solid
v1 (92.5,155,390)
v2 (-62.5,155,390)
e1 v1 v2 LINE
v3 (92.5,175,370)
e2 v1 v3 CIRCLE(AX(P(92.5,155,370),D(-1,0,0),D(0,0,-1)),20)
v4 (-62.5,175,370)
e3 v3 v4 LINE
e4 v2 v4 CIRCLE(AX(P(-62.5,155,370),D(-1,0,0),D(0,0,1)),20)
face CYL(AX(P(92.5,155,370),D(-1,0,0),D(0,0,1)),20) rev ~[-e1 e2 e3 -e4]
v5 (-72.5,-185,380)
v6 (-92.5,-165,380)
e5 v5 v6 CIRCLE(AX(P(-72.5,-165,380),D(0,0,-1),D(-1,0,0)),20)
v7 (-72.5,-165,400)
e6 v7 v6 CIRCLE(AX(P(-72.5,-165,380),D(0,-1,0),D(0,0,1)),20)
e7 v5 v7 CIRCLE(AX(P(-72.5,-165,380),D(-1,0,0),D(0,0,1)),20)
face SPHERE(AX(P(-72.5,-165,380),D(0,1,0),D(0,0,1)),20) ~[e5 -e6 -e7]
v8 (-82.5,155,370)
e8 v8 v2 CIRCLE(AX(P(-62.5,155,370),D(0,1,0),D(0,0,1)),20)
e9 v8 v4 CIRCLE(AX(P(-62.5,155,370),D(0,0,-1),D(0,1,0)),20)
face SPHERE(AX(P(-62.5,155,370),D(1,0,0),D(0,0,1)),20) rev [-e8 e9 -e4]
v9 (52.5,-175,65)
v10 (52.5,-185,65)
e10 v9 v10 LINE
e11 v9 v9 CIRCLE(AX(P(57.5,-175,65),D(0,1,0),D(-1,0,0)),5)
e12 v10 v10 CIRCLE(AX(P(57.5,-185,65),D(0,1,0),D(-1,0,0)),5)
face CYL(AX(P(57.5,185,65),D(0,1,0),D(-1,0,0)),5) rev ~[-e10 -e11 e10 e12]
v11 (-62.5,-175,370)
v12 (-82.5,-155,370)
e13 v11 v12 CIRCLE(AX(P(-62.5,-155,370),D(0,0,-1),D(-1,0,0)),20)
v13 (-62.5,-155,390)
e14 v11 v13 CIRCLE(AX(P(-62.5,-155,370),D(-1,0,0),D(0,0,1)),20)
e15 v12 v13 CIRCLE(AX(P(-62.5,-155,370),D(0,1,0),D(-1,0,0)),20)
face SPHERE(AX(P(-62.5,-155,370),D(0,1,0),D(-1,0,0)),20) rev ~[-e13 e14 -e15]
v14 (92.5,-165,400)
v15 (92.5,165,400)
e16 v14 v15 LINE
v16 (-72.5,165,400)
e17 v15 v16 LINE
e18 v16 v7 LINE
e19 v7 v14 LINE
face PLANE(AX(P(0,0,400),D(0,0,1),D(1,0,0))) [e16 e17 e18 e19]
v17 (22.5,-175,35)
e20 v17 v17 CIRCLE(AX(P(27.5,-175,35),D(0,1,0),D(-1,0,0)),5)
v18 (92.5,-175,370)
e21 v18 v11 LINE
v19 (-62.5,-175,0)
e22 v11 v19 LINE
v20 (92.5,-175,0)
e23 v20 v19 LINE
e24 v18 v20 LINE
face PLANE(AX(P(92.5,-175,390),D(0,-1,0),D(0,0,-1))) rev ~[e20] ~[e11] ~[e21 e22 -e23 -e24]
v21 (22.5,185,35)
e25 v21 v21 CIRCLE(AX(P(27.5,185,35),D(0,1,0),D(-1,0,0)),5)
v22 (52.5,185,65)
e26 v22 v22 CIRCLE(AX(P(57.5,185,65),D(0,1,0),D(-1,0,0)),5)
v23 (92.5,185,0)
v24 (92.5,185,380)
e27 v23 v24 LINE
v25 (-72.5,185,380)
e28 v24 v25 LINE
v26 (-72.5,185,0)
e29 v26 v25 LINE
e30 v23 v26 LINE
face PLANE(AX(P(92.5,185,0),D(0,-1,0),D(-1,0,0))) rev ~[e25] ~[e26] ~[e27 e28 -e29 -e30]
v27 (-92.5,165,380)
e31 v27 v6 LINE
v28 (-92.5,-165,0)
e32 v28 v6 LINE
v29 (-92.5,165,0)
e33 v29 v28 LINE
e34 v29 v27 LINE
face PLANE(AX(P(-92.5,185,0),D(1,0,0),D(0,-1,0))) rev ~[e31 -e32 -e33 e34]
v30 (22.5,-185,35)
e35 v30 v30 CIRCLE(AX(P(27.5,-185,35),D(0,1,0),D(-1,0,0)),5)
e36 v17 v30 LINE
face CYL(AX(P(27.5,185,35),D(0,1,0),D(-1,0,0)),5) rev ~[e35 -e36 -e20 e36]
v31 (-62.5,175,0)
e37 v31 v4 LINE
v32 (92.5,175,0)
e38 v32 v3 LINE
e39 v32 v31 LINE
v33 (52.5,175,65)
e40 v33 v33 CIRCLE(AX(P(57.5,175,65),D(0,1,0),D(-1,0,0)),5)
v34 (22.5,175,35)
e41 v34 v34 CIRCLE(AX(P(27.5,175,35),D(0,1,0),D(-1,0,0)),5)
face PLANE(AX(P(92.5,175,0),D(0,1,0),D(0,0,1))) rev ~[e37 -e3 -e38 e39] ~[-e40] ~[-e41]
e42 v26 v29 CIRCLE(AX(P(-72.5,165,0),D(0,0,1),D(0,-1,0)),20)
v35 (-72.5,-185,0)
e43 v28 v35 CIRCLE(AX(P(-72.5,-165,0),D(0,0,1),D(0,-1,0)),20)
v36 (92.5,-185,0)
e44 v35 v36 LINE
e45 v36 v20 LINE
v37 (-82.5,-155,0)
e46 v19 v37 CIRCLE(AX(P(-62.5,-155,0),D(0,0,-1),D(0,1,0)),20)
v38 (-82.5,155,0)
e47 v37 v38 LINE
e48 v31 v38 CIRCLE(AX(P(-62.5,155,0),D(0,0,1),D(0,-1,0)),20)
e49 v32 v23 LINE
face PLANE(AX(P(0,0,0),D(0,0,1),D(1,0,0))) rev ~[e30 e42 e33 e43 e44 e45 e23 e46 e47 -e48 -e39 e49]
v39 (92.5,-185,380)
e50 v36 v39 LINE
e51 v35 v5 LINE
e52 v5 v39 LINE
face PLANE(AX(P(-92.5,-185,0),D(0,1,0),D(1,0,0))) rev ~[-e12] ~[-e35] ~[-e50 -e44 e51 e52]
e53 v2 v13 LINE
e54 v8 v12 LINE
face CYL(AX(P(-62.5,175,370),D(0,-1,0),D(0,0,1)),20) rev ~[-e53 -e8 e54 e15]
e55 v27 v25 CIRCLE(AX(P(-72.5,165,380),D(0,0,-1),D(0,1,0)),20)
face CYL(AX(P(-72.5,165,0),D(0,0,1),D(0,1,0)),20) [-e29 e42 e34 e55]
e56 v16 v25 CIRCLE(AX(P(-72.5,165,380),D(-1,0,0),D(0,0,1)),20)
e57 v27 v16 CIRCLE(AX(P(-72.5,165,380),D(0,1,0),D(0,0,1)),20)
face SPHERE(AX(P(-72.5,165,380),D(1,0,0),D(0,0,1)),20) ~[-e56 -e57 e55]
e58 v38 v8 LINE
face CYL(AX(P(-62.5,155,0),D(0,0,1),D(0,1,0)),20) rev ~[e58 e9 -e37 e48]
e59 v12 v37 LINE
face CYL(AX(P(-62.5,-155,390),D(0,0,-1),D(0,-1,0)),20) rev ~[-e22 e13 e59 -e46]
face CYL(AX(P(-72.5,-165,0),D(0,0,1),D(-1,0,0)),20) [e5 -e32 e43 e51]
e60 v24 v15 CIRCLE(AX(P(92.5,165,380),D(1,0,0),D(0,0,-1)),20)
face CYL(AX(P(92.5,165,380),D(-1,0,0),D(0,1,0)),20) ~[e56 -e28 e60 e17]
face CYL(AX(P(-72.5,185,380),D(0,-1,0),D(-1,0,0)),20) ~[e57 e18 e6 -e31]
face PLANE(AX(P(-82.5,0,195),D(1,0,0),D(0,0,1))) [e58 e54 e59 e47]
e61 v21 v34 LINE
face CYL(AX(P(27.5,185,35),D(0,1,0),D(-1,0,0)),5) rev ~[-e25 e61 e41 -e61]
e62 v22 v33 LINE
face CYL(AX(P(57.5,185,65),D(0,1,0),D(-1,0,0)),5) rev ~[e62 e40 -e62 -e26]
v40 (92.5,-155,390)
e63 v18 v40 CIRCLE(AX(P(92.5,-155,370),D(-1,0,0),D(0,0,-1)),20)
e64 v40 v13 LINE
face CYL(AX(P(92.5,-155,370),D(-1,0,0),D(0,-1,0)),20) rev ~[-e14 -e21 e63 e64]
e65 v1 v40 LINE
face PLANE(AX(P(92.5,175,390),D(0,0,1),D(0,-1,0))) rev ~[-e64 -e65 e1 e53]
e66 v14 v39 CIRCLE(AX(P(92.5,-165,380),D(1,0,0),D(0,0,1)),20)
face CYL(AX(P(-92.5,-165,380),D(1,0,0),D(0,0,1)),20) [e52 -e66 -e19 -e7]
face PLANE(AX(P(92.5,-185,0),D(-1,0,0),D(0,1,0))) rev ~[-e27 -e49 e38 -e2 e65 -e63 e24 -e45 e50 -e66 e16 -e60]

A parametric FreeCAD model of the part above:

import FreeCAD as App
import Part
import Sketcher
from FreeCAD import Vector
Q = App.Units.Quantity


def edges_at(feature, points):
    """Names of the edges that pass closest to the given points."""
    edges = feature.Shape.Edges
    near = lambda p: min(range(len(edges)), key=lambda i: edges[i].distToShape(Part.Vertex(*p))[0])
    return sorted({f"Edge{near(p) + 1}" for p in points})

doc = App.newDocument("Part")
body = doc.addObject("PartDesign::Body", "Body")

# Sketch on XY plane
sketch1 = body.newObject("Sketcher::SketchObject", "Sketch")
sketch1.AttachmentSupport = (doc.getObject("XY_Plane"), [""])
sketch1.MapMode = "FlatFace"
sketch1.addGeometry([
    Part.LineSegment(Vector(92, -185, 0), Vector(92, 185, 0)),
    Part.LineSegment(Vector(92, 185, 0), Vector(-92, 185, 0)),
    Part.LineSegment(Vector(-92, 185, 0), Vector(-92, -185, 0)),
    Part.LineSegment(Vector(-92, -185, 0), Vector(92, -185, 0)),
], False)
sketch1.addConstraint([
    Sketcher.Constraint("Coincident", 0, 2, 1, 1),
    Sketcher.Constraint("Coincident", 1, 2, 2, 1),
    Sketcher.Constraint("Coincident", 2, 2, 3, 1),
    Sketcher.Constraint("Coincident", 3, 2, 0, 1),
    Sketcher.Constraint("Vertical", 0),
    Sketcher.Constraint("Horizontal", 1),
    Sketcher.Constraint("Vertical", 2),
    Sketcher.Constraint("Horizontal", 3),
    Sketcher.Constraint("Symmetric", 0, 2, 2, 2, -1, 1),
    Sketcher.Constraint("DistanceX", -1, 1, 0, 2, Q("92.5 mm")),
    Sketcher.Constraint("DistanceY", 0, 1, 0, 2, Q("370 mm")),
])
pad1 = body.newObject("PartDesign::Pad", "Pad")
pad1.Profile = sketch1
pad1.Length = 400

# Sketch on YZ plane
sketch2 = body.newObject("Sketcher::SketchObject", "Sketch001")
sketch2.AttachmentSupport = (doc.getObject("YZ_Plane"), [""])
sketch2.MapMode = "FlatFace"
sketch2.AttachmentOffset = App.Placement(Vector(0, 0, 92.5), App.Rotation())
sketch2.addGeometry([
    Part.LineSegment(Vector(175, 0, 0), Vector(175, 390, 0)),
    Part.LineSegment(Vector(175, 390, 0), Vector(-175, 390, 0)),
    Part.LineSegment(Vector(-175, 390, 0), Vector(-175, 0, 0)),
    Part.LineSegment(Vector(-175, 0, 0), Vector(175, 0, 0)),
], False)
sketch2.addConstraint([
    Sketcher.Constraint("Coincident", 0, 2, 1, 1),
    Sketcher.Constraint("Coincident", 1, 2, 2, 1),
    Sketcher.Constraint("Coincident", 2, 2, 3, 1),
    Sketcher.Constraint("Coincident", 3, 2, 0, 1),
    Sketcher.Constraint("Vertical", 0),
    Sketcher.Constraint("Horizontal", 1),
    Sketcher.Constraint("Vertical", 2),
    Sketcher.Constraint("Horizontal", 3),
    Sketcher.Constraint("Symmetric", 2, 2, 3, 2, -1, 1),
    Sketcher.Constraint("DistanceX", -1, 1, 0, 2, Q("175 mm")),
    Sketcher.Constraint("DistanceY", 0, 1, 0, 2, Q("390 mm")),
])
pocket1 = body.newObject("PartDesign::Pocket", "Pocket")
pocket1.Profile = sketch2
pocket1.Length = 175
doc.recompute()

fillet = body.newObject("PartDesign::Fillet", "Fillet")
fillet.Base = (pocket1, edges_at(pocket1, [
    (5, 175, 390),
    (-82.5, 0, 390),
    (-82.5, 175, 195),
    (-82.5, -175, 195),
    (5, -175, 390),
    (0, 185, 400),
    (-92.5, 0, 400),
    (-92.5, 185, 200),
    (0, -185, 400),
    (-92.5, -185, 200),
]))
fillet.Radius = 20

# Sketch on XZ plane
sketch3 = body.newObject("Sketcher::SketchObject", "Sketch002")
sketch3.AttachmentSupport = (doc.getObject("XZ_Plane"), [""])
sketch3.MapMode = "FlatFace"
sketch3.AttachmentOffset = App.Placement(Vector(0, 0, -185), App.Rotation())
sketch3.addGeometry([
    Part.Circle(Vector(58, 65, 0), Vector(0, 0, 1), 5),
    Part.Circle(Vector(28, 35, 0), Vector(0, 0, 1), 5),
], False)
sketch3.addConstraint([
    Sketcher.Constraint("Equal", 0, 1),
    Sketcher.Constraint("Diameter", 0, Q("10 mm")),
    Sketcher.Constraint("DistanceY", -1, 1, 0, 3, Q("65 mm")),
    Sketcher.Constraint("DistanceY", -1, 1, 1, 3, Q("35 mm")),
    Sketcher.Constraint("DistanceX", 1, 3, 0, 3, Q("30 mm")),
    Sketcher.Constraint("DistanceX", -1, 1, 0, 3, Q("57.5 mm")),
])
pocket2 = body.newObject("PartDesign::Pocket", "Pocket001")
pocket2.Profile = sketch3
pocket2.Type = "ThroughAll"
pocket2.Reversed = True

doc.recompute()
